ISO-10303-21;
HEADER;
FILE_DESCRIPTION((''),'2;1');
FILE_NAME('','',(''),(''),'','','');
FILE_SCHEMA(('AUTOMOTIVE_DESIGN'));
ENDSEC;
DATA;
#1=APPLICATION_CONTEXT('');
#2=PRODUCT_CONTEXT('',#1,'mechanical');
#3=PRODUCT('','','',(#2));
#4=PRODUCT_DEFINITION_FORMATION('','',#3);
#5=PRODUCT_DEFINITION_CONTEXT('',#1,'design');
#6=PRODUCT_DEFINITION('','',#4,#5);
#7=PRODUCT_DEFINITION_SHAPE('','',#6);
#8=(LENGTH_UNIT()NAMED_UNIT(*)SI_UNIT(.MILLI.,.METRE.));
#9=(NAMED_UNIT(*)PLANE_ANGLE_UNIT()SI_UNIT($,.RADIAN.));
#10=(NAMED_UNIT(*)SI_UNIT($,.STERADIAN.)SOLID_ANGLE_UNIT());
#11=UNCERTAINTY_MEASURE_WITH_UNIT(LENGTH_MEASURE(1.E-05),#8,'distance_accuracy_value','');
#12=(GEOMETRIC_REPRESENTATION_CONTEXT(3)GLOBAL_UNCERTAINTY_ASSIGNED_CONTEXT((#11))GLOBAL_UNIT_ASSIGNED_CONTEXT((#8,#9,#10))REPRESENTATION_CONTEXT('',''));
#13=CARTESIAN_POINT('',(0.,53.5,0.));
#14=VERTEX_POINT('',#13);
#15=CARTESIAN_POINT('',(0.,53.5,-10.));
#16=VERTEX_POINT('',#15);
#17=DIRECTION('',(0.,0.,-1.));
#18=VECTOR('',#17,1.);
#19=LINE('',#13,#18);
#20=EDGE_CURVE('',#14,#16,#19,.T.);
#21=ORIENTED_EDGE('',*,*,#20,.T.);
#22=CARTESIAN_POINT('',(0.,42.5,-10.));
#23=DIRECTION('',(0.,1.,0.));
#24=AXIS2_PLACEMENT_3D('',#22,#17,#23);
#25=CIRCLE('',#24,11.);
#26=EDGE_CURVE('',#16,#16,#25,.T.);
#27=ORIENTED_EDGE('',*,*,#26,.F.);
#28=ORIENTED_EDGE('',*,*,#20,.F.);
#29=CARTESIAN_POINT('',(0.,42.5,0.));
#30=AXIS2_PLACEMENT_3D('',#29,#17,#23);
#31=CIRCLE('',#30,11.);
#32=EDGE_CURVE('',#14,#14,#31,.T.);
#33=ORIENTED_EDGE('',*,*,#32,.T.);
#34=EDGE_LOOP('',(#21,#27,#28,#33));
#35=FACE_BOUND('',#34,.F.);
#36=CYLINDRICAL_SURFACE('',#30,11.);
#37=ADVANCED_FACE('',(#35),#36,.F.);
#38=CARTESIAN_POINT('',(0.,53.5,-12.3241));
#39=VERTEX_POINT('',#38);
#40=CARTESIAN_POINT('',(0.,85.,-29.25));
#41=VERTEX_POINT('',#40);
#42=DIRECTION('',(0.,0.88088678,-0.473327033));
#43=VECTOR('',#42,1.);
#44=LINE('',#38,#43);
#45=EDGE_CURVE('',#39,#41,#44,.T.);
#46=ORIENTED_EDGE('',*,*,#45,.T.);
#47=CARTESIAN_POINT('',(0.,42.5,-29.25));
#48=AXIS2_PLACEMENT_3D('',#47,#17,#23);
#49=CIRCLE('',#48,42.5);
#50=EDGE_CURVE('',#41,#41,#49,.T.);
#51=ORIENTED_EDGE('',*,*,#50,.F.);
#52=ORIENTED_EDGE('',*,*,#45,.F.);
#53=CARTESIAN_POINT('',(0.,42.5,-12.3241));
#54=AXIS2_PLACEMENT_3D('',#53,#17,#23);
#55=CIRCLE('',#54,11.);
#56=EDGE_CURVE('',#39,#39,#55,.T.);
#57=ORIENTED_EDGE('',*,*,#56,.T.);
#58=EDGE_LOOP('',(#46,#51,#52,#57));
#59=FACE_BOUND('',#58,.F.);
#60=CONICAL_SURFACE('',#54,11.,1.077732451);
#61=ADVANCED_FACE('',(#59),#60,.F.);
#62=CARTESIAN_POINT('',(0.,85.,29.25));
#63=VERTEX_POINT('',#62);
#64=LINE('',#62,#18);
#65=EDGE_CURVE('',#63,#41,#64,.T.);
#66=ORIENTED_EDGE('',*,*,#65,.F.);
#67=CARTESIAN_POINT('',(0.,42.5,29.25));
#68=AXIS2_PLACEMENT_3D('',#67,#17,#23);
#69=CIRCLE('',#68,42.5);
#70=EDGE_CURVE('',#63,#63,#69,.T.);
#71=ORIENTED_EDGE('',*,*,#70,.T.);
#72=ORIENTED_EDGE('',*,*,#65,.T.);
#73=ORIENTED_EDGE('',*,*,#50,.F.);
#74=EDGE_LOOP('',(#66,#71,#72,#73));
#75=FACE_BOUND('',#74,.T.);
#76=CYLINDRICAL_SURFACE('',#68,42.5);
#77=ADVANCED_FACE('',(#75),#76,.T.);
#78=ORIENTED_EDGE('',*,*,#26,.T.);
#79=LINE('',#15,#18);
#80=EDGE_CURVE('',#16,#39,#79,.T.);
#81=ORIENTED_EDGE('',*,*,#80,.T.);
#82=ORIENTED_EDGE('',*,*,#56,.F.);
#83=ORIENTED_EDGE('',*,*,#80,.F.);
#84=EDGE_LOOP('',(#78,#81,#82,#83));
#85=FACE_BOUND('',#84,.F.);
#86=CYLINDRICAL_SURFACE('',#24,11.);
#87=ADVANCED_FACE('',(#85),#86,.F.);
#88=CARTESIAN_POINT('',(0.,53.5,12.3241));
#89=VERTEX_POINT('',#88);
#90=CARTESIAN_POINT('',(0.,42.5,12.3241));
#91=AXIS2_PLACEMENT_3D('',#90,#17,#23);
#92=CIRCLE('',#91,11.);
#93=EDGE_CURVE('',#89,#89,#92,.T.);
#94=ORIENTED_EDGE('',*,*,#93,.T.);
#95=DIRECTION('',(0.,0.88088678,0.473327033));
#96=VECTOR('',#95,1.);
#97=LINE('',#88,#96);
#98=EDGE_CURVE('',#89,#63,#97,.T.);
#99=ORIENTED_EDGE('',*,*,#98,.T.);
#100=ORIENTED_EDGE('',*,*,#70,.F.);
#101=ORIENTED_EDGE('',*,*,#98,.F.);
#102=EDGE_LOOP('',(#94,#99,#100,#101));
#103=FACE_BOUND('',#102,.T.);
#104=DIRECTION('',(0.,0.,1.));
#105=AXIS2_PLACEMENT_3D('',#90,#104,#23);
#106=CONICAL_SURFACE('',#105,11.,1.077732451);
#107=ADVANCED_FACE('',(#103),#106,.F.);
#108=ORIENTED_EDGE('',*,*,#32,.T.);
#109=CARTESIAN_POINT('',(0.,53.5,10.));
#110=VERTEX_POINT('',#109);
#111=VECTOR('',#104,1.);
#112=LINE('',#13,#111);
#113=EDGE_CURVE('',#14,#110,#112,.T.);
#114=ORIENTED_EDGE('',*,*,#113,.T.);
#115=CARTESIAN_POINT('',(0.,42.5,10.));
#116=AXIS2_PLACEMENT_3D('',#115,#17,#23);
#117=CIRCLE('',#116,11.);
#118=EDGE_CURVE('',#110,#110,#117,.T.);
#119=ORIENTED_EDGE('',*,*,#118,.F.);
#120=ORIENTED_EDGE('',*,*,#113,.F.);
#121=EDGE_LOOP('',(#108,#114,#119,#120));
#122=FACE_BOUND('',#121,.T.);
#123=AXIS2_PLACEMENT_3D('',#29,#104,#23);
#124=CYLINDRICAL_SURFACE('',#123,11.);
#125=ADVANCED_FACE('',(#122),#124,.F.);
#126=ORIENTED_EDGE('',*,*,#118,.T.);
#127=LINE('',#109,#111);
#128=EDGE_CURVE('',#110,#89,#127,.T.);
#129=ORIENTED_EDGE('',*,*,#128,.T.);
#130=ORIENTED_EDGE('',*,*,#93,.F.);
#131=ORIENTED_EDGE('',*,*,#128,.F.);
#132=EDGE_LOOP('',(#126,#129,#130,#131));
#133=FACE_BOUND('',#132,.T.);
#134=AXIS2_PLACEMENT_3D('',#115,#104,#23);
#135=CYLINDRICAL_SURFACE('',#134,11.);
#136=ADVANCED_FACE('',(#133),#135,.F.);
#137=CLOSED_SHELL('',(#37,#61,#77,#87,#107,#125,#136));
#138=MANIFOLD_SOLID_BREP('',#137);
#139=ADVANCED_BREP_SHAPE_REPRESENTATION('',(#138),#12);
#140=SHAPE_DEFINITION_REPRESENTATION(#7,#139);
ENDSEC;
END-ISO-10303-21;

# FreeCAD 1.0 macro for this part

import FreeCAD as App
import Part
import Sketcher
from FreeCAD import Vector
Q = App.Units.Quantity


def add_polygon(sketch, points):
    """Adds a closed chain of lines whose ends are joined by coincident constraints."""
    first, n = sketch.GeometryCount, len(points)
    for a, b in zip(points, points[1:] + points[:1]):
        sketch.addGeometry(Part.LineSegment(App.Vector(*a, 0), App.Vector(*b, 0)), False)
    for i in range(n):
        sketch.addConstraint(Sketcher.Constraint("Coincident", first + i, 2, first + (i + 1) % n, 1))

doc = App.newDocument("Part")
body = doc.addObject("PartDesign::Body", "Body")

# Sketch on YZ plane
sketch1 = doc.addObject("Sketcher::SketchObject", "Sketch")
body.addObject(sketch1)
sketch1.AttachmentSupport = (doc.YZ_Plane, [""])
sketch1.MapMode = "FlatFace"
add_polygon(sketch1, [(85, -29), (85, 29), (54, 12), (54, -12)])  # lines 0-3
sketch1.addGeometry(Part.LineSegment(Vector(42, 29, 0), Vector(42, -29, 0)), True)  # axis
sketch1.addConstraint([
    Sketcher.Constraint("Vertical", 0),
    Sketcher.Constraint("Vertical", 2),
    Sketcher.Constraint("Vertical", 4),
    Sketcher.Constraint("Horizontal", 0, 2, 4, 1),
    Sketcher.Constraint("Horizontal", 3, 2, 4, 2),
    Sketcher.Constraint("Equal", 1, 3),
    Sketcher.Constraint("DistanceX", 4, 1, 1, 2, Q("11 mm")),
    Sketcher.Constraint("DistanceY", 0, 1, 0, 2, Q("58.5 mm")),
    Sketcher.Constraint("DistanceX", -1, 1, 0, 2, Q("85 mm")),
    Sketcher.Constraint("DistanceX", -1, 1, 1, 2, Q("53.5 mm")),
    Sketcher.Constraint("Angle", 1, Q("-151.7495 deg")),
    Sketcher.Constraint("DistanceY", -1, 1, 0, 2, Q("29.25 mm")),
])
revolution = doc.addObject("PartDesign::Revolution", "Revolution")
body.addObject(revolution)
revolution.Profile = sketch1
revolution.ReferenceAxis = (sketch1, ["Axis0"])
revolution.Angle = 360

doc.recompute()
